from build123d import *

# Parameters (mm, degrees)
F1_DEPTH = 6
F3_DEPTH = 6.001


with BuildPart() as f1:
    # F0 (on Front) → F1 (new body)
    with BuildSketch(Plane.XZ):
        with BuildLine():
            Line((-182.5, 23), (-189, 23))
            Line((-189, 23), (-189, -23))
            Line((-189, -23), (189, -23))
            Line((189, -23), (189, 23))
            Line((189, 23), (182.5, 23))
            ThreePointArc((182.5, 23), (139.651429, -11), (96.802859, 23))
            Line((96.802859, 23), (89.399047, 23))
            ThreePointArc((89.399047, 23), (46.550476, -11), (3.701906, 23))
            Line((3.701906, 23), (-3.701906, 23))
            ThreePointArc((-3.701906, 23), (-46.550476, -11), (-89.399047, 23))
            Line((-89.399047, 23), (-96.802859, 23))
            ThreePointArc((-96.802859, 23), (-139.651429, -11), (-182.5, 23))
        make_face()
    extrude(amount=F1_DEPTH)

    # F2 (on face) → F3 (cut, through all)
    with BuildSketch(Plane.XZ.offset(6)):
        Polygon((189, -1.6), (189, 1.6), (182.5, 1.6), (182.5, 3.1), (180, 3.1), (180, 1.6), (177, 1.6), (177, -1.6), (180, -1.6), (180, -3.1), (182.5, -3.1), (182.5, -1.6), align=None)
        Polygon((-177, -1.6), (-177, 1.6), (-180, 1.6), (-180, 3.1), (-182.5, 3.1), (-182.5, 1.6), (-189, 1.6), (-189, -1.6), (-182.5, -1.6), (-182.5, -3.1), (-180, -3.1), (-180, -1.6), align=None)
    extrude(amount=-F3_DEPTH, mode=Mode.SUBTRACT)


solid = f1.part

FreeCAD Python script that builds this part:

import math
import FreeCAD as App
import Part
import Sketcher

V = App.Vector
Q = App.Units.Quantity


def add_polygon(sketch, points):
    """Adds a closed chain of lines whose ends are joined by coincident constraints."""
    first, n = sketch.GeometryCount, len(points)
    for a, b in zip(points, points[1:] + points[:1]):
        sketch.addGeometry(Part.LineSegment(App.Vector(*a, 0), App.Vector(*b, 0)), False)
    for i in range(n):
        sketch.addConstraint(Sketcher.Constraint("Coincident", first + i, 2, first + (i + 1) % n, 1))

doc = App.newDocument("Part")
body = doc.addObject("PartDesign::Body", "Body")

sketch1 = body.newObject("Sketcher::SketchObject", "Sketch")
sketch1.AttachmentSupport = (doc.getObject("XZ_Plane"), [""])
sketch1.MapMode = "FlatFace"
sketch1.addGeometry(Part.LineSegment(V(-182.5, 23, 0), V(-189, 23, 0)), False)
sketch1.addGeometry(Part.LineSegment(V(-189, 23, 0), V(-189, -23, 0)), False)
sketch1.addGeometry(Part.LineSegment(V(-189, -23, 0), V(189, -23, 0)), False)
sketch1.addGeometry(Part.LineSegment(V(189, -23, 0), V(189, 23, 0)), False)
sketch1.addGeometry(Part.LineSegment(V(189, 23, 0), V(182.5, 23, 0)), False)
sketch1.addGeometry(Part.ArcOfCircle(Part.Circle(V(139.65143, 33, 0), V(0, 0, 1), 44), math.radians(-166.863441), math.radians(-13.136559)), False)
sketch1.addGeometry(Part.LineSegment(V(96.802859, 23, 0), V(89.399047, 23, 0)), False)
sketch1.addGeometry(Part.ArcOfCircle(Part.Circle(V(46.550477, 33, 0), V(0, 0, 1), 44), math.radians(-166.863441), math.radians(-13.136559)), False)
sketch1.addGeometry(Part.LineSegment(V(3.701906, 23, 0), V(-3.701906, 23, 0)), False)
sketch1.addGeometry(Part.ArcOfCircle(Part.Circle(V(-46.550477, 33, 0), V(0, 0, 1), 44), math.radians(-166.863441), math.radians(-13.136559)), False)
sketch1.addGeometry(Part.LineSegment(V(-89.399047, 23, 0), V(-96.802859, 23, 0)), False)
sketch1.addGeometry(Part.ArcOfCircle(Part.Circle(V(-139.65143, 33, 0), V(0, 0, 1), 44), math.radians(-166.863441), math.radians(-13.136559)), False)
sketch1.addConstraint(Sketcher.Constraint("Coincident", 0, 2, 1, 1))
sketch1.addConstraint(Sketcher.Constraint("Coincident", 1, 2, 2, 1))
sketch1.addConstraint(Sketcher.Constraint("Coincident", 2, 2, 3, 1))
sketch1.addConstraint(Sketcher.Constraint("Coincident", 3, 2, 4, 1))
sketch1.addConstraint(Sketcher.Constraint("Coincident", 4, 2, 5, 2))
sketch1.addConstraint(Sketcher.Constraint("Coincident", 5, 1, 6, 1))
sketch1.addConstraint(Sketcher.Constraint("Coincident", 6, 2, 7, 2))
sketch1.addConstraint(Sketcher.Constraint("Coincident", 7, 1, 8, 1))
sketch1.addConstraint(Sketcher.Constraint("Coincident", 8, 2, 9, 2))
sketch1.addConstraint(Sketcher.Constraint("Coincident", 9, 1, 10, 1))
sketch1.addConstraint(Sketcher.Constraint("Coincident", 10, 2, 11, 2))
sketch1.addConstraint(Sketcher.Constraint("Coincident", 11, 1, 0, 1))
sketch1.addConstraint(Sketcher.Constraint("Horizontal", 0))
sketch1.addConstraint(Sketcher.Constraint("Vertical", 1))
sketch1.addConstraint(Sketcher.Constraint("Horizontal", 2))
sketch1.addConstraint(Sketcher.Constraint("Vertical", 3))
sketch1.addConstraint(Sketcher.Constraint("Horizontal", 4))
sketch1.addConstraint(Sketcher.Constraint("Horizontal", 6))
sketch1.addConstraint(Sketcher.Constraint("Horizontal", 8))
sketch1.addConstraint(Sketcher.Constraint("Horizontal", 10))
sketch1.addConstraint(Sketcher.Constraint("Equal", 5, 7))
sketch1.addConstraint(Sketcher.Constraint("Equal", 7, 9))
sketch1.addConstraint(Sketcher.Constraint("Equal", 9, 11))
sketch1.addConstraint(Sketcher.Constraint("Symmetric", 0, 2, 2, 2, -1, 1))
sketch1.addConstraint(Sketcher.Constraint("Symmetric", 7, 3, 9, 3, -2))
sketch1.addConstraint(Sketcher.Constraint("Symmetric", 5, 3, 11, 3, -2))
sketch1.addConstraint(Sketcher.Constraint("Horizontal", 5, 3, 7, 3))
sketch1.addConstraint(Sketcher.Constraint("Horizontal", 0, 2, 3, 2))
sketch1.addConstraint(Sketcher.Constraint("Horizontal", 4, 2, 5, 1))
sketch1.addConstraint(Sketcher.Constraint("Horizontal", 6, 2, 7, 1))
sketch1.addConstraint(Sketcher.Constraint("Horizontal", 8, 2, 9, 1))
sketch1.addConstraint(Sketcher.Constraint("Equal", 6, 8))
sketch1.addConstraint(Sketcher.Constraint("Radius", 5, Q("44 mm")))
sketch1.addConstraint(Sketcher.Constraint("DistanceX", 2, 1, 2, 2, Q("378 mm")))
sketch1.addConstraint(Sketcher.Constraint("DistanceY", 1, 2, 1, 1, Q("46 mm")))
sketch1.addConstraint(Sketcher.Constraint("DistanceX", 0, 2, 0, 1, Q("6.5 mm")))
sketch1.addConstraint(Sketcher.Constraint("DistanceY", -1, 1, 5, 3, Q("33 mm")))
pad1 = body.newObject("PartDesign::Pad", "Pad")
pad1.Profile = sketch1
pad1.Length = 6

sketch2 = body.newObject("Sketcher::SketchObject", "Sketch001")
sketch2.AttachmentSupport = (doc.getObject("XZ_Plane"), [""])
sketch2.MapMode = "FlatFace"
sketch2.AttachmentOffset = App.Placement(V(0, 0, 6), App.Rotation())
add_polygon(sketch2, [(189, -1.6), (189, 1.6), (182.5, 1.6), (182.5, 3.1), (180, 3.1), (180, 1.6), (177, 1.6), (177, -1.6), (180, -1.6), (180, -3.1), (182.5, -3.1), (182.5, -1.6)])
add_polygon(sketch2, [(-177, -1.6), (-177, 1.6), (-180, 1.6), (-180, 3.1), (-182.5, 3.1), (-182.5, 1.6), (-189, 1.6), (-189, -1.6), (-182.5, -1.6), (-182.5, -3.1), (-180, -3.1), (-180, -1.6)])
sketch2.addConstraint(Sketcher.Constraint("Vertical", 0))
sketch2.addConstraint(Sketcher.Constraint("Horizontal", 1))
sketch2.addConstraint(Sketcher.Constraint("Vertical", 2))
sketch2.addConstraint(Sketcher.Constraint("Horizontal", 3))
sketch2.addConstraint(Sketcher.Constraint("Vertical", 4))
sketch2.addConstraint(Sketcher.Constraint("Horizontal", 5))
sketch2.addConstraint(Sketcher.Constraint("Vertical", 6))
sketch2.addConstraint(Sketcher.Constraint("Horizontal", 7))
sketch2.addConstraint(Sketcher.Constraint("Vertical", 8))
sketch2.addConstraint(Sketcher.Constraint("Horizontal", 9))
sketch2.addConstraint(Sketcher.Constraint("Vertical", 10))
sketch2.addConstraint(Sketcher.Constraint("Horizontal", 11))
sketch2.addConstraint(Sketcher.Constraint("Vertical", 12))
sketch2.addConstraint(Sketcher.Constraint("Horizontal", 13))
sketch2.addConstraint(Sketcher.Constraint("Vertical", 14))
sketch2.addConstraint(Sketcher.Constraint("Horizontal", 15))
sketch2.addConstraint(Sketcher.Constraint("Vertical", 16))
sketch2.addConstraint(Sketcher.Constraint("Horizontal", 17))
sketch2.addConstraint(Sketcher.Constraint("Vertical", 18))
sketch2.addConstraint(Sketcher.Constraint("Horizontal", 19))
sketch2.addConstraint(Sketcher.Constraint("Vertical", 20))
sketch2.addConstraint(Sketcher.Constraint("Horizontal", 21))
sketch2.addConstraint(Sketcher.Constraint("Vertical", 22))
sketch2.addConstraint(Sketcher.Constraint("Horizontal", 23))
sketch2.addConstraint(Sketcher.Constraint("Symmetric", 6, 2, 12, 2, -1, 1))
sketch2.addConstraint(Sketcher.Constraint("Symmetric", 8, 2, 14, 2, -1, 1))
sketch2.addConstraint(Sketcher.Constraint("Symmetric", 10, 2, 16, 2, -1, 1))
sketch2.addConstraint(Sketcher.Constraint("Symmetric", 0, 2, 18, 2, -1, 1))
sketch2.addConstraint(Sketcher.Constraint("Symmetric", 2, 2, 20, 2, -1, 1))
sketch2.addConstraint(Sketcher.Constraint("Symmetric", 4, 2, 22, 2, -1, 1))
sketch2.addConstraint(Sketcher.Constraint("Symmetric", 4, 2, 13, 2, -2))
sketch2.addConstraint(Sketcher.Constraint("Symmetric", 2, 2, 15, 2, -2))
sketch2.addConstraint(Sketcher.Constraint("Horizontal", 1, 2, 4, 2))
sketch2.addConstraint(Sketcher.Constraint("Horizontal", 7, 2, 10, 2))
sketch2.addConstraint(Sketcher.Constraint("DistanceX", 5, 2, 5, 1, Q("3 mm")))
sketch2.addConstraint(Sketcher.Constraint("DistanceX", 1, 2, 1, 1, Q("6.5 mm")))
sketch2.addConstraint(Sketcher.Constraint("DistanceX", 3, 2, 3, 1, Q("2.5 mm")))
sketch2.addConstraint(Sketcher.Constraint("DistanceY", 0, 1, 0, 2, Q("3.2 mm")))
sketch2.addConstraint(Sketcher.Constraint("DistanceY", 2, 1, 2, 2, Q("1.5 mm")))
sketch2.addConstraint(Sketcher.Constraint("DistanceX", -1, 1, 0, 2, Q("189 mm")))
pocket1 = body.newObject("PartDesign::Pocket", "Pocket")
pocket1.Profile = sketch2
pocket1.Type = "ThroughAll"

doc.recompute()
